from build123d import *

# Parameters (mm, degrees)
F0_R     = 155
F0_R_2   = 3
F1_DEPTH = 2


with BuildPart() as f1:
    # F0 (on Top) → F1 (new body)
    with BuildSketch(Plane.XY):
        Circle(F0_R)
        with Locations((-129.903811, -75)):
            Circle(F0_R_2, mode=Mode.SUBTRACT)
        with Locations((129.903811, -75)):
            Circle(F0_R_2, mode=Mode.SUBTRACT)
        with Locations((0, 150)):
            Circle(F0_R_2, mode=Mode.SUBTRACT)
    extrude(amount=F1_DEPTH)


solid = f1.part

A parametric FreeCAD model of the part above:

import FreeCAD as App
import Part
import Sketcher

V = App.Vector
Q = App.Units.Quantity

doc = App.newDocument("Part")
body = doc.addObject("PartDesign::Body", "Body")

# Sketch on XY plane
sketch1 = doc.addObject("Sketcher::SketchObject", "Sketch")
body.addObject(sketch1)
sketch1.AttachmentSupport = (doc.XY_Plane, [""])
sketch1.MapMode = "FlatFace"
sketch1.addGeometry(Part.Circle(V(0, 0, 0), V(0, 0, 1), 155), False)
sketch1.addGeometry(Part.Circle(V(-129.9, -75, 0), V(0, 0, 1), 3), False)
sketch1.addGeometry(Part.Circle(V(129.9, -75, 0), V(0, 0, 1), 3), False)
sketch1.addGeometry(Part.Circle(V(0, 150, 0), V(0, 0, 1), 3), False)
sketch1.addConstraint(Sketcher.Constraint("Coincident", 0, 3, -1, 1))
sketch1.addConstraint(Sketcher.Constraint("Equal", 1, 2))
sketch1.addConstraint(Sketcher.Constraint("Equal", 2, 3))
sketch1.addConstraint(Sketcher.Constraint("Symmetric", 1, 3, 2, 3, -2))
sketch1.addConstraint(Sketcher.Constraint("PointOnObject", 3, 3, -2))
sketch1.addConstraint(Sketcher.Constraint("Diameter", 0, Q("310 mm")))
sketch1.addConstraint(Sketcher.Constraint("Diameter", 1, Q("6 mm")))
sketch1.addConstraint(Sketcher.Constraint("DistanceY", 1, 3, -1, 1, Q("75 mm")))
sketch1.addConstraint(Sketcher.Constraint("DistanceY", -1, 1, 3, 3, Q("150 mm")))
sketch1.addConstraint(Sketcher.Constraint("DistanceX", 1, 3, -1, 1, Q("129.903811 mm")))
pad1 = doc.addObject("PartDesign::Pad", "Pad")
body.addObject(pad1)
pad1.Profile = sketch1
pad1.Length = 2

doc.recompute()
